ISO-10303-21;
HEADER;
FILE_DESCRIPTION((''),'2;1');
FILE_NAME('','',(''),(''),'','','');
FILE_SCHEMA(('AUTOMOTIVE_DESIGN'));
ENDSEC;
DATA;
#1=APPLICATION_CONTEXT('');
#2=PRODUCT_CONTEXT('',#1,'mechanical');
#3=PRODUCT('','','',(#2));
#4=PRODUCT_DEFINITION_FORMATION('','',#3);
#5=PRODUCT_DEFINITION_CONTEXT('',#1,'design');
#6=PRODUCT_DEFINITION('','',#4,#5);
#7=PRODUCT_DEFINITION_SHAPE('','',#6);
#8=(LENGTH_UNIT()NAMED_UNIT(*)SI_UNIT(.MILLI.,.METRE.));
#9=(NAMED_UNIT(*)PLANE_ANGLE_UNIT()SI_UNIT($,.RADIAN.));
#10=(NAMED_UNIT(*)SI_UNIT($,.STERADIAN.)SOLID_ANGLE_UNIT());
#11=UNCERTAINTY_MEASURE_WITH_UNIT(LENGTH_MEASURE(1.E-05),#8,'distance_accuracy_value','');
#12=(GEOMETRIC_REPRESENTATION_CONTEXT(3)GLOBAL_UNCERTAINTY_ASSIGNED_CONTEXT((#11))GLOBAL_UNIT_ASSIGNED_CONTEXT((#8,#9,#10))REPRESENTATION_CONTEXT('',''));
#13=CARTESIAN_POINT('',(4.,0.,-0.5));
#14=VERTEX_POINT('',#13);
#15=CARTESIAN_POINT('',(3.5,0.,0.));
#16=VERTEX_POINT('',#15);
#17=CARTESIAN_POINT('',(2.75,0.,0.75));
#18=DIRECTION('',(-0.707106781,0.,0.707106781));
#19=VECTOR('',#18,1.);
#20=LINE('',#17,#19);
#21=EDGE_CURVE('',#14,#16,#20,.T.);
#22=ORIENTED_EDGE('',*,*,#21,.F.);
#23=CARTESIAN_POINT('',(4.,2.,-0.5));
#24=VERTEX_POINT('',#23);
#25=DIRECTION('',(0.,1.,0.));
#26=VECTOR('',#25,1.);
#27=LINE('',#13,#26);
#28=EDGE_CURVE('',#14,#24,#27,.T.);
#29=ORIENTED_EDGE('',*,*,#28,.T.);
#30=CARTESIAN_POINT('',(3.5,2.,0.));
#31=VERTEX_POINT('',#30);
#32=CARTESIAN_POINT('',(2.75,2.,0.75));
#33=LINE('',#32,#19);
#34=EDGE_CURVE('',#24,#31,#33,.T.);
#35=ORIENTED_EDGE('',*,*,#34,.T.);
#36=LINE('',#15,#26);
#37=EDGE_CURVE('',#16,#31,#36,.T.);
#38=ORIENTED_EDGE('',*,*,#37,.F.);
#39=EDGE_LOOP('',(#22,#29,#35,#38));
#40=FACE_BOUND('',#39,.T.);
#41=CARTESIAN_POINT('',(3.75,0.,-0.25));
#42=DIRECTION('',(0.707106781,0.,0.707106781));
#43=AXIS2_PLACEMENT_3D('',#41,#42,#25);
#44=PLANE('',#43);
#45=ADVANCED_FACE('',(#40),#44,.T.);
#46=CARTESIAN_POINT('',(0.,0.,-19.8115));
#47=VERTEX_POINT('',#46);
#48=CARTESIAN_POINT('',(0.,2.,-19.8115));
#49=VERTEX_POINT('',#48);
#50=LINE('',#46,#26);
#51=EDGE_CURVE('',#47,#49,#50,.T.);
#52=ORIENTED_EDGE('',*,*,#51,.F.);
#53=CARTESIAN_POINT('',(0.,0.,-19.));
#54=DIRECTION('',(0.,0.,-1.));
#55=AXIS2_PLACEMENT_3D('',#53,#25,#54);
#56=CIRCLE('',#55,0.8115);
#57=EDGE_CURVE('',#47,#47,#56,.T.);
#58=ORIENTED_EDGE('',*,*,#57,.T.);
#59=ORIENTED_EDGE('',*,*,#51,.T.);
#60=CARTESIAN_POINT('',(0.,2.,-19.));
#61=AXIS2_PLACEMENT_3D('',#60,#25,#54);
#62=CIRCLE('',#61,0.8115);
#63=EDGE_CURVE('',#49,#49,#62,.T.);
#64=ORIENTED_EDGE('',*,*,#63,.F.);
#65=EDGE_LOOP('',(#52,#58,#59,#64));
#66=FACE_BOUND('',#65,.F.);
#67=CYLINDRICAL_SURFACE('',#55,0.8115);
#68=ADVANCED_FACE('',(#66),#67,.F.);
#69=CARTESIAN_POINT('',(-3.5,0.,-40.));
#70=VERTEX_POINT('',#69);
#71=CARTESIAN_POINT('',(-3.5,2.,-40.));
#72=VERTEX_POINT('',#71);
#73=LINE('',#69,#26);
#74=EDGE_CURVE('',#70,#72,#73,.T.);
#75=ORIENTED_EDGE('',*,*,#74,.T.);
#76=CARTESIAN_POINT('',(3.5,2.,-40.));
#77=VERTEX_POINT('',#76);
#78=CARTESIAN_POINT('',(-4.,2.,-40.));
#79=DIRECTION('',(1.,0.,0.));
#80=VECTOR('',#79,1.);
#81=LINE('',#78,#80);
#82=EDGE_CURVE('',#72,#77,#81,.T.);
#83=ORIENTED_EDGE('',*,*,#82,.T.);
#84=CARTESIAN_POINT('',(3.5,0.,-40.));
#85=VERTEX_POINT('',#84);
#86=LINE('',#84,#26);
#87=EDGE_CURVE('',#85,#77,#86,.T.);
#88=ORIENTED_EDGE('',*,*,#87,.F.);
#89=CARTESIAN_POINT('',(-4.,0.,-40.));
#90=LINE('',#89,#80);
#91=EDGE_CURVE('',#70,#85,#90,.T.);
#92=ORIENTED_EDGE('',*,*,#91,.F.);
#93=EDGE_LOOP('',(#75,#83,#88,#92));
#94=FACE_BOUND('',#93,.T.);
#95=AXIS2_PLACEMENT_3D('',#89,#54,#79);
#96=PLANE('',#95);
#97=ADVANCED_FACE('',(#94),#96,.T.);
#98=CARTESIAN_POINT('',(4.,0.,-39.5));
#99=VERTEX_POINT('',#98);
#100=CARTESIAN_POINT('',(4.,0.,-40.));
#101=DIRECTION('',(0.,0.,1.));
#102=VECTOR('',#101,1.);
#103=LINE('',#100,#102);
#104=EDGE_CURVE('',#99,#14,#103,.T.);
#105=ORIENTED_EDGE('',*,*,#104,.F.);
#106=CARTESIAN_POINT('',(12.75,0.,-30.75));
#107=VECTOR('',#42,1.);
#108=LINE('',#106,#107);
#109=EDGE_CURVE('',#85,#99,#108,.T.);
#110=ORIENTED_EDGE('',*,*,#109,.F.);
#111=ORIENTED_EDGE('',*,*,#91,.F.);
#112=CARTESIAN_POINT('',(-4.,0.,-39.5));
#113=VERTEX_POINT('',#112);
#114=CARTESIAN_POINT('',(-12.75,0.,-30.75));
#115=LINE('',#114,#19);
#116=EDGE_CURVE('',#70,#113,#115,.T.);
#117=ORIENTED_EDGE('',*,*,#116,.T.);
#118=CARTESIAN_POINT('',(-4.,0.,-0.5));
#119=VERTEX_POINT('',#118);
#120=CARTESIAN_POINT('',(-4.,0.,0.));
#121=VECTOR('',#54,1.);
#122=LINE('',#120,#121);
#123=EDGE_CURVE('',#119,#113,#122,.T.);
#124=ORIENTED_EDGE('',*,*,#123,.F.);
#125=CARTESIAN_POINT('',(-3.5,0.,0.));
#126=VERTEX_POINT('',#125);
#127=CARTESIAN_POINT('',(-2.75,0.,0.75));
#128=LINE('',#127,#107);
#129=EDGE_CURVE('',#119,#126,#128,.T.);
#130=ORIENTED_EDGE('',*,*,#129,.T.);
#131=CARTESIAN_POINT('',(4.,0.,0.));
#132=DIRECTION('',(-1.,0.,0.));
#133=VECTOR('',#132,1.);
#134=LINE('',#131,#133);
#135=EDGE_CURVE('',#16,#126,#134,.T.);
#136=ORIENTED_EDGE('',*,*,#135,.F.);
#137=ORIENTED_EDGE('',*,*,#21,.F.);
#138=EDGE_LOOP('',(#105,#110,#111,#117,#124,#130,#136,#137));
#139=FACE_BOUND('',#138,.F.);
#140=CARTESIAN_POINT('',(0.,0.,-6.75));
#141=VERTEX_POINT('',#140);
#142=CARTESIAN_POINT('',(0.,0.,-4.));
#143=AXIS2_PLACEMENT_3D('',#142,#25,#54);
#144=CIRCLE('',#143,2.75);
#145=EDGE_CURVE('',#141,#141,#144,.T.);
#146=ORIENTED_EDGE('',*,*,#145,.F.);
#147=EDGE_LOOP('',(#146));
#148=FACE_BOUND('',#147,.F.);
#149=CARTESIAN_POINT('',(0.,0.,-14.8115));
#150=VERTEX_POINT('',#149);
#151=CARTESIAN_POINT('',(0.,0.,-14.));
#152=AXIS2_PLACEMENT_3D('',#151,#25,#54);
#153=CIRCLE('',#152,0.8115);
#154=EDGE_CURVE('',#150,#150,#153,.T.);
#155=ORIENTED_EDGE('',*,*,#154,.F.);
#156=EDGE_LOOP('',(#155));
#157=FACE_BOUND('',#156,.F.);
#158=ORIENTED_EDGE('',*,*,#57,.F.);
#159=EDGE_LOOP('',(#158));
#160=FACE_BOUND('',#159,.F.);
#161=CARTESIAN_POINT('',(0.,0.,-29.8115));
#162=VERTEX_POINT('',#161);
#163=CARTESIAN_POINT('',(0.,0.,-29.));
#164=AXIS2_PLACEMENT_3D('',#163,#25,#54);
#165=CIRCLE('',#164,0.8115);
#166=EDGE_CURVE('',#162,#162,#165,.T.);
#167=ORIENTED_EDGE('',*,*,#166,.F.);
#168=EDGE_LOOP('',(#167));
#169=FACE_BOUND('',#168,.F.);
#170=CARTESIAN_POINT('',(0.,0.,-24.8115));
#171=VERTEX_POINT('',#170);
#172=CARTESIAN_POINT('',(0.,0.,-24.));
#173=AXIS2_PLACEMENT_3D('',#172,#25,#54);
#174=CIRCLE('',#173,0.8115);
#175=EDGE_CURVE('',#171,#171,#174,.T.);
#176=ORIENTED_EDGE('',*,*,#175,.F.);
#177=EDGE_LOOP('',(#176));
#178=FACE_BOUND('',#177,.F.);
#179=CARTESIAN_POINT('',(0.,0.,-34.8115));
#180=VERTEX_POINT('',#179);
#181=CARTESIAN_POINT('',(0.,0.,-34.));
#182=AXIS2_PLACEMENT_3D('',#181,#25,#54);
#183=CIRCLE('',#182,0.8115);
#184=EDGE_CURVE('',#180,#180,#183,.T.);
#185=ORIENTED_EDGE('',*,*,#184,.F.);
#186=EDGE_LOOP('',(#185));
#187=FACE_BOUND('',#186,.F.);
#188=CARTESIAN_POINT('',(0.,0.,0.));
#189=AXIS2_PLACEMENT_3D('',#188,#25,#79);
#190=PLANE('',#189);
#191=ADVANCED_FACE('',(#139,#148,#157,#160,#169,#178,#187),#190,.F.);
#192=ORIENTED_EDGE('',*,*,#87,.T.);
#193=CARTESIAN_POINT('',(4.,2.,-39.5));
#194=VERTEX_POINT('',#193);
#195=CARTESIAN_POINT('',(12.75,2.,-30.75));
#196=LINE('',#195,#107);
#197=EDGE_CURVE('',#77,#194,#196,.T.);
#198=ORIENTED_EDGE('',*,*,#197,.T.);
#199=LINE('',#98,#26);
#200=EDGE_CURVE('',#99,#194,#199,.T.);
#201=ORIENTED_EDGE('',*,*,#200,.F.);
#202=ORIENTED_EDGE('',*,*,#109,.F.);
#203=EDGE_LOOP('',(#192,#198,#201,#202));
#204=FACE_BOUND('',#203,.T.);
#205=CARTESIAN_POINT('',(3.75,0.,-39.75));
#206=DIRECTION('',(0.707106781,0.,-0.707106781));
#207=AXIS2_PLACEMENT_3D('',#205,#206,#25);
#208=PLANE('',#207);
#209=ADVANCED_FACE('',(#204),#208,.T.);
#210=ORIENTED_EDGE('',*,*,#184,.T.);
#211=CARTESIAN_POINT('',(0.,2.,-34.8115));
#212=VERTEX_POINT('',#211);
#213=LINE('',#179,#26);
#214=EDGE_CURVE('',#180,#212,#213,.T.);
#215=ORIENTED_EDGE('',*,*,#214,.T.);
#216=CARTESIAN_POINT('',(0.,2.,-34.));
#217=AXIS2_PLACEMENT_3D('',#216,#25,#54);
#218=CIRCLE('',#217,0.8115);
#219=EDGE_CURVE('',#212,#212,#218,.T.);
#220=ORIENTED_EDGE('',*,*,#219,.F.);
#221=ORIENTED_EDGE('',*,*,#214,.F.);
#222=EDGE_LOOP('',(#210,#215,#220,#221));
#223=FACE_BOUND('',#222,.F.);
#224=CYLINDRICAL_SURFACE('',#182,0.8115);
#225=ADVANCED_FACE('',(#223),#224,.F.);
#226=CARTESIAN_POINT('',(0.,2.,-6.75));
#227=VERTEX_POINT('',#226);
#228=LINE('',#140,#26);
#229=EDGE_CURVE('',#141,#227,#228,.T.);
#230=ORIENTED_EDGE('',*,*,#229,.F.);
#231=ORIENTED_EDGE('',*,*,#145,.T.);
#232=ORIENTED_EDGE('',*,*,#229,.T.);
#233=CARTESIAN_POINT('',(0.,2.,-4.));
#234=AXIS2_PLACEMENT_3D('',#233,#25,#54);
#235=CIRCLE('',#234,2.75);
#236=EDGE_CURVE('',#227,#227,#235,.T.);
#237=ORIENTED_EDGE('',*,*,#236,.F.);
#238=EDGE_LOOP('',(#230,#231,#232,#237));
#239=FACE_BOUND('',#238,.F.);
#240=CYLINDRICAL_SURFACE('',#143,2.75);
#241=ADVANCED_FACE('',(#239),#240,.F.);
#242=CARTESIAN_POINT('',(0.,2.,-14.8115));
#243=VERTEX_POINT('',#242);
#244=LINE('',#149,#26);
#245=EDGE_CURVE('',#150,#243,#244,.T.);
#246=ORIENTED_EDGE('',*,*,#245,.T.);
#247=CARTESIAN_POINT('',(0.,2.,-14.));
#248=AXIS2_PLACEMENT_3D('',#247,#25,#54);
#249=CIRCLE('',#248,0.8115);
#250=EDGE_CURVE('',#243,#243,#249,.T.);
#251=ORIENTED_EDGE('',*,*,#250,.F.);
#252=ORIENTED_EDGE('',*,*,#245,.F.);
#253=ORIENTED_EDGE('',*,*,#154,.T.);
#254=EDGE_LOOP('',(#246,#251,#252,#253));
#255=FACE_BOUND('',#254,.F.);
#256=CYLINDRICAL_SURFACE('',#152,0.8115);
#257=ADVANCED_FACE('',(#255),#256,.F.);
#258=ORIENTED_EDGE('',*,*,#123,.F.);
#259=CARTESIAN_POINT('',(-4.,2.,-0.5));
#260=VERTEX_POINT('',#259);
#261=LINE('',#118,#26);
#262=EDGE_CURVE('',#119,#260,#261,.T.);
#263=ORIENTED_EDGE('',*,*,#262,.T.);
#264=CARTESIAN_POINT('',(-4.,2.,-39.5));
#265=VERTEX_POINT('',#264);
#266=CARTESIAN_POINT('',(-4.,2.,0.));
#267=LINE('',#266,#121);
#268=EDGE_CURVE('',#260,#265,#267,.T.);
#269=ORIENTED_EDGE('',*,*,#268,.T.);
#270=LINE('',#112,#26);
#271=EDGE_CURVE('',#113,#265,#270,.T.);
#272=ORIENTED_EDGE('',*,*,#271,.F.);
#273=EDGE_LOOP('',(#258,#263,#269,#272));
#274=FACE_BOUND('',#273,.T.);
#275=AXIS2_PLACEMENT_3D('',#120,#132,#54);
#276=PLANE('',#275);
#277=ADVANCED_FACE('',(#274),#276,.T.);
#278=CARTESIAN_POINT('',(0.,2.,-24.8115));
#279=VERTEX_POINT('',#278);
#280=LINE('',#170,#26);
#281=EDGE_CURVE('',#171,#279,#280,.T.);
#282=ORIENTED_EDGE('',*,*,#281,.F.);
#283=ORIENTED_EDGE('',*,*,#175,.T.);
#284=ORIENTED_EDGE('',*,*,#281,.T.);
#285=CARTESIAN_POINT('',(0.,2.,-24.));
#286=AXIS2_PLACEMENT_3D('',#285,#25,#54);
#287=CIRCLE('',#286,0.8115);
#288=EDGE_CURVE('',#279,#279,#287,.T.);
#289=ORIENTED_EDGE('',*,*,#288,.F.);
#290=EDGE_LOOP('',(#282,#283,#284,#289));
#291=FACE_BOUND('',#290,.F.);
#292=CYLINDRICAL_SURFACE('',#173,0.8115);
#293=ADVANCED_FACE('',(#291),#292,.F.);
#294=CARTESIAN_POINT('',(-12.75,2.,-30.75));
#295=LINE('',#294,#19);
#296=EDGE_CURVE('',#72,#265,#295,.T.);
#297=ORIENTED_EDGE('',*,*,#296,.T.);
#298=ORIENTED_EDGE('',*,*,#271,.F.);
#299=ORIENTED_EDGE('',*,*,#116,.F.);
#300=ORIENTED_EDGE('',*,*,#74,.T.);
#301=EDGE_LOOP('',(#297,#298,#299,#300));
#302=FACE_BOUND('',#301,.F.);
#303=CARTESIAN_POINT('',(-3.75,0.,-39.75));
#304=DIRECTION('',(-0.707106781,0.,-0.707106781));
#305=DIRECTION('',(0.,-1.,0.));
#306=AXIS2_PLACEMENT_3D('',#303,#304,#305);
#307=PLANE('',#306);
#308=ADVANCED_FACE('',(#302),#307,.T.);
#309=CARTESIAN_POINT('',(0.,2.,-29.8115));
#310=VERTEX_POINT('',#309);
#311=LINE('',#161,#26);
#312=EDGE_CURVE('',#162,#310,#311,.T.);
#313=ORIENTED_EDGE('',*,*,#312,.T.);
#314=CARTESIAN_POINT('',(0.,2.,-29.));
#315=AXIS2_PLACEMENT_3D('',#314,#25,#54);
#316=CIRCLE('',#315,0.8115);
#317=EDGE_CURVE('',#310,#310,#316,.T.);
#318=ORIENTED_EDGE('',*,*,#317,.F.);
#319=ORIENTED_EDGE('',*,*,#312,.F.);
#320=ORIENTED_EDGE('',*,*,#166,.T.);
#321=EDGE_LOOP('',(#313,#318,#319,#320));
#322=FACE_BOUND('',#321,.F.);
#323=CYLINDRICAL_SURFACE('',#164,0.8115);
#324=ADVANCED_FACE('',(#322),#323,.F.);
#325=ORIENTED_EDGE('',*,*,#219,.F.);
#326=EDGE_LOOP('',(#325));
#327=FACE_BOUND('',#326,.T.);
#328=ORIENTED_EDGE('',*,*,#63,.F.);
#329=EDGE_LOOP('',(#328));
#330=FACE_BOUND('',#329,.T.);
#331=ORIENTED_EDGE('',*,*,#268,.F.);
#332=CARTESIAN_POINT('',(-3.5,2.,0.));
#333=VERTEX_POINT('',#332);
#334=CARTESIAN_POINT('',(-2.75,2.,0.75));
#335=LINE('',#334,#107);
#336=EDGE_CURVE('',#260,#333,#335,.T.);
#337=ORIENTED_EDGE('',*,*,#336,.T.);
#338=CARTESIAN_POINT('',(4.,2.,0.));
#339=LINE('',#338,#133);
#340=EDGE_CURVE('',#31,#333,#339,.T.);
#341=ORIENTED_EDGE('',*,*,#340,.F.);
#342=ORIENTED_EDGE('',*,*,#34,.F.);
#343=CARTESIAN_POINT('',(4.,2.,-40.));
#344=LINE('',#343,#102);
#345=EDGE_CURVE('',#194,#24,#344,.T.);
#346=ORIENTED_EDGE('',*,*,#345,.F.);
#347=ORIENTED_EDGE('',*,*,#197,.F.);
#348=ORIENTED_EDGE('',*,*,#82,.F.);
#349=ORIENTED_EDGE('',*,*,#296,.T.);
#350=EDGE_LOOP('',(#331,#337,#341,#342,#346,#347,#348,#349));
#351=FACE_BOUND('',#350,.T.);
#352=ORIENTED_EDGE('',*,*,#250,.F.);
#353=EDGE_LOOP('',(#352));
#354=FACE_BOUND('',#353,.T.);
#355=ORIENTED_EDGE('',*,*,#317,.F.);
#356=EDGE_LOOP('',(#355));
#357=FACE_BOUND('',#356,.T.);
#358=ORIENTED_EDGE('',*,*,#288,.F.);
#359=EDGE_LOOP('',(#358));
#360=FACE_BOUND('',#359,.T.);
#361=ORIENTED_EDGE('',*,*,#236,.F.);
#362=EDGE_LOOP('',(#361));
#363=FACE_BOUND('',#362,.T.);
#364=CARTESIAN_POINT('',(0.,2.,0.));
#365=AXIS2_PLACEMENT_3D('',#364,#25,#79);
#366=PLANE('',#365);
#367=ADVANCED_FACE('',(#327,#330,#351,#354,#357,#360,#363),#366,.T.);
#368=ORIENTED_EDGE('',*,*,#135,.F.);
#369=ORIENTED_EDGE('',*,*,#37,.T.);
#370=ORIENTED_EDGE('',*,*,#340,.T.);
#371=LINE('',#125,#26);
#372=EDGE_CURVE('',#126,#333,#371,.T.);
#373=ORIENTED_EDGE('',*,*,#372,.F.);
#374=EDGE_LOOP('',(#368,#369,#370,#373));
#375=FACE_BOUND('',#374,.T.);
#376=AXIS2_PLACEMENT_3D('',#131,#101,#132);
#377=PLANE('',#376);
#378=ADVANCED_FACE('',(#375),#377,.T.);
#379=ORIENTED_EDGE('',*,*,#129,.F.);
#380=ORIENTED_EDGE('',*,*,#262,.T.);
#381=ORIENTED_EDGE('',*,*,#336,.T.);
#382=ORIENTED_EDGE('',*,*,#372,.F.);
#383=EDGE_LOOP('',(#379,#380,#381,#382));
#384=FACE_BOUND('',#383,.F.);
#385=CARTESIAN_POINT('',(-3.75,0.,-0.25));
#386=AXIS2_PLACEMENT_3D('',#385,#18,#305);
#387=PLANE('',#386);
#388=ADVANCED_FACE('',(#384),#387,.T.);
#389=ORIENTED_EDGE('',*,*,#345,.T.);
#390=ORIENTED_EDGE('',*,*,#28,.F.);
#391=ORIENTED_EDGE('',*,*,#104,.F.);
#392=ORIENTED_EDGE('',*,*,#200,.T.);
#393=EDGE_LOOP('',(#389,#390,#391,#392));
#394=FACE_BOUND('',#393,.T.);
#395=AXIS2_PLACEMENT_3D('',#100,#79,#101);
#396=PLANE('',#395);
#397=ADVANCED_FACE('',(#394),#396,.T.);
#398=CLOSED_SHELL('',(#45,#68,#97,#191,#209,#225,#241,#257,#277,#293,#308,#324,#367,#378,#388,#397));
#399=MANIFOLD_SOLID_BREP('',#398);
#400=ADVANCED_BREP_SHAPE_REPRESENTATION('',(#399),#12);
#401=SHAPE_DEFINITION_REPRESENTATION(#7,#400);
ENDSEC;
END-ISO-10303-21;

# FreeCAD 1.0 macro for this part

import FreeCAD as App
import Part
import Sketcher

V = App.Vector


def edges_at(feature, points):
    """Names of the edges that pass closest to the given points."""
    edges = feature.Shape.Edges
    near = lambda p: min(range(len(edges)), key=lambda i: edges[i].distToShape(Part.Vertex(*p))[0])
    return sorted({f"Edge{near(p) + 1}" for p in points})

doc = App.newDocument("Part")
body = doc.addObject("PartDesign::Body", "Body")

# Sketch on XZ plane
sketch1 = doc.addObject("Sketcher::SketchObject", "Sketch")
body.addObject(sketch1)
sketch1.AttachmentSupport = (doc.XZ_Plane, [""])
sketch1.MapMode = "FlatFace"
sketch1.addGeometry([
    Part.LineSegment(V(4, -40, 0), V(-4, -40, 0)),
    Part.LineSegment(V(-4, -40, 0), V(-4, 0, 0)),
    Part.LineSegment(V(-4, 0, 0), V(4, 0, 0)),
    Part.LineSegment(V(4, 0, 0), V(4, -40, 0)),
], False)
sketch1.addConstraint([
    Sketcher.Constraint("Coincident", 0, 2, 1, 1),
    Sketcher.Constraint("Coincident", 1, 2, 2, 1),
    Sketcher.Constraint("Coincident", 2, 2, 3, 1),
    Sketcher.Constraint("Coincident", 3, 2, 0, 1),
    Sketcher.Constraint("Horizontal", 0),
    Sketcher.Constraint("Vertical", 1),
    Sketcher.Constraint("Horizontal", 2),
    Sketcher.Constraint("Vertical", 3),
    Sketcher.Constraint("Symmetric", 1, 2, 2, 2, -1, 1),
    Sketcher.Constraint("DistanceX", 0, 2, 0, 1, 8.0),
    Sketcher.Constraint("DistanceY", 1, 1, 1, 2, 40.0),
])
pad1 = doc.addObject("PartDesign::Pad", "Pad")
body.addObject(pad1)
pad1.Profile = sketch1
pad1.Length = 2
pad1.Reversed = True

# Sketch on XZ plane
sketch2 = doc.addObject("Sketcher::SketchObject", "Sketch001")
body.addObject(sketch2)
sketch2.AttachmentSupport = (doc.XZ_Plane, [""])
sketch2.MapMode = "FlatFace"
sketch2.addGeometry(Part.Circle(V(0, -4, 0), V(0, 0, 1), 2.8), False)
sketch2.addConstraint([
    Sketcher.Constraint("PointOnObject", 0, 3, -2),
    Sketcher.Constraint("Diameter", 0, 5.5),
    Sketcher.Constraint("DistanceY", 0, 3, -1, 1, 4.0),
])
doc.recompute()
hole = doc.addObject("PartDesign::Hole", "Hole")
body.addObject(hole)
hole.Profile = sketch2
hole.ThreadType = "None"
hole.Diameter = 5.5
hole.DepthType = "Dimension"
hole.Depth = 16
hole.DrillPoint = "Angled"
hole.DrillPointAngle = 118

# Sketch on XZ plane
sketch3 = doc.addObject("Sketcher::SketchObject", "Sketch002")
body.addObject(sketch3)
sketch3.AttachmentSupport = (doc.XZ_Plane, [""])
sketch3.MapMode = "FlatFace"
sketch3.addGeometry(Part.Circle(V(0, -14, 0), V(0, 0, 1), 0.8), False)
sketch3.addConstraint([
    Sketcher.Constraint("PointOnObject", 0, 3, -2),
    Sketcher.Constraint("Diameter", 0, 1.623),
    Sketcher.Constraint("DistanceY", 0, 3, -1, 1, 14.0),
])
doc.recompute()
hole2 = doc.addObject("PartDesign::Hole", "Hole001")
body.addObject(hole2)
hole2.Profile = sketch3
hole2.ThreadType = "None"
hole2.Diameter = 1.623
hole2.DepthType = "Dimension"
hole2.Depth = 16
hole2.DrillPoint = "Angled"
hole2.DrillPointAngle = 118
doc.recompute()

linearpattern = doc.addObject("PartDesign::LinearPattern", "LinearPattern")
body.addObject(linearpattern)
linearpattern.Originals = [hole2]
linearpattern.Direction = (doc.Z_Axis, [""])
linearpattern.Mode = "offset"
linearpattern.Offset = 5
linearpattern.Occurrences = 5
linearpattern.Reversed = True
body.Tip = linearpattern
doc.recompute()

chamfer = doc.addObject("PartDesign::Chamfer", "Chamfer")
body.addObject(chamfer)
chamfer.Base = (linearpattern, edges_at(linearpattern, [
    (4, 1, 0),
    (-4, 1, 0),
    (4, 1, -40),
    (-4, 1, -40),
]))
chamfer.Size = 0.5

doc.recompute()
